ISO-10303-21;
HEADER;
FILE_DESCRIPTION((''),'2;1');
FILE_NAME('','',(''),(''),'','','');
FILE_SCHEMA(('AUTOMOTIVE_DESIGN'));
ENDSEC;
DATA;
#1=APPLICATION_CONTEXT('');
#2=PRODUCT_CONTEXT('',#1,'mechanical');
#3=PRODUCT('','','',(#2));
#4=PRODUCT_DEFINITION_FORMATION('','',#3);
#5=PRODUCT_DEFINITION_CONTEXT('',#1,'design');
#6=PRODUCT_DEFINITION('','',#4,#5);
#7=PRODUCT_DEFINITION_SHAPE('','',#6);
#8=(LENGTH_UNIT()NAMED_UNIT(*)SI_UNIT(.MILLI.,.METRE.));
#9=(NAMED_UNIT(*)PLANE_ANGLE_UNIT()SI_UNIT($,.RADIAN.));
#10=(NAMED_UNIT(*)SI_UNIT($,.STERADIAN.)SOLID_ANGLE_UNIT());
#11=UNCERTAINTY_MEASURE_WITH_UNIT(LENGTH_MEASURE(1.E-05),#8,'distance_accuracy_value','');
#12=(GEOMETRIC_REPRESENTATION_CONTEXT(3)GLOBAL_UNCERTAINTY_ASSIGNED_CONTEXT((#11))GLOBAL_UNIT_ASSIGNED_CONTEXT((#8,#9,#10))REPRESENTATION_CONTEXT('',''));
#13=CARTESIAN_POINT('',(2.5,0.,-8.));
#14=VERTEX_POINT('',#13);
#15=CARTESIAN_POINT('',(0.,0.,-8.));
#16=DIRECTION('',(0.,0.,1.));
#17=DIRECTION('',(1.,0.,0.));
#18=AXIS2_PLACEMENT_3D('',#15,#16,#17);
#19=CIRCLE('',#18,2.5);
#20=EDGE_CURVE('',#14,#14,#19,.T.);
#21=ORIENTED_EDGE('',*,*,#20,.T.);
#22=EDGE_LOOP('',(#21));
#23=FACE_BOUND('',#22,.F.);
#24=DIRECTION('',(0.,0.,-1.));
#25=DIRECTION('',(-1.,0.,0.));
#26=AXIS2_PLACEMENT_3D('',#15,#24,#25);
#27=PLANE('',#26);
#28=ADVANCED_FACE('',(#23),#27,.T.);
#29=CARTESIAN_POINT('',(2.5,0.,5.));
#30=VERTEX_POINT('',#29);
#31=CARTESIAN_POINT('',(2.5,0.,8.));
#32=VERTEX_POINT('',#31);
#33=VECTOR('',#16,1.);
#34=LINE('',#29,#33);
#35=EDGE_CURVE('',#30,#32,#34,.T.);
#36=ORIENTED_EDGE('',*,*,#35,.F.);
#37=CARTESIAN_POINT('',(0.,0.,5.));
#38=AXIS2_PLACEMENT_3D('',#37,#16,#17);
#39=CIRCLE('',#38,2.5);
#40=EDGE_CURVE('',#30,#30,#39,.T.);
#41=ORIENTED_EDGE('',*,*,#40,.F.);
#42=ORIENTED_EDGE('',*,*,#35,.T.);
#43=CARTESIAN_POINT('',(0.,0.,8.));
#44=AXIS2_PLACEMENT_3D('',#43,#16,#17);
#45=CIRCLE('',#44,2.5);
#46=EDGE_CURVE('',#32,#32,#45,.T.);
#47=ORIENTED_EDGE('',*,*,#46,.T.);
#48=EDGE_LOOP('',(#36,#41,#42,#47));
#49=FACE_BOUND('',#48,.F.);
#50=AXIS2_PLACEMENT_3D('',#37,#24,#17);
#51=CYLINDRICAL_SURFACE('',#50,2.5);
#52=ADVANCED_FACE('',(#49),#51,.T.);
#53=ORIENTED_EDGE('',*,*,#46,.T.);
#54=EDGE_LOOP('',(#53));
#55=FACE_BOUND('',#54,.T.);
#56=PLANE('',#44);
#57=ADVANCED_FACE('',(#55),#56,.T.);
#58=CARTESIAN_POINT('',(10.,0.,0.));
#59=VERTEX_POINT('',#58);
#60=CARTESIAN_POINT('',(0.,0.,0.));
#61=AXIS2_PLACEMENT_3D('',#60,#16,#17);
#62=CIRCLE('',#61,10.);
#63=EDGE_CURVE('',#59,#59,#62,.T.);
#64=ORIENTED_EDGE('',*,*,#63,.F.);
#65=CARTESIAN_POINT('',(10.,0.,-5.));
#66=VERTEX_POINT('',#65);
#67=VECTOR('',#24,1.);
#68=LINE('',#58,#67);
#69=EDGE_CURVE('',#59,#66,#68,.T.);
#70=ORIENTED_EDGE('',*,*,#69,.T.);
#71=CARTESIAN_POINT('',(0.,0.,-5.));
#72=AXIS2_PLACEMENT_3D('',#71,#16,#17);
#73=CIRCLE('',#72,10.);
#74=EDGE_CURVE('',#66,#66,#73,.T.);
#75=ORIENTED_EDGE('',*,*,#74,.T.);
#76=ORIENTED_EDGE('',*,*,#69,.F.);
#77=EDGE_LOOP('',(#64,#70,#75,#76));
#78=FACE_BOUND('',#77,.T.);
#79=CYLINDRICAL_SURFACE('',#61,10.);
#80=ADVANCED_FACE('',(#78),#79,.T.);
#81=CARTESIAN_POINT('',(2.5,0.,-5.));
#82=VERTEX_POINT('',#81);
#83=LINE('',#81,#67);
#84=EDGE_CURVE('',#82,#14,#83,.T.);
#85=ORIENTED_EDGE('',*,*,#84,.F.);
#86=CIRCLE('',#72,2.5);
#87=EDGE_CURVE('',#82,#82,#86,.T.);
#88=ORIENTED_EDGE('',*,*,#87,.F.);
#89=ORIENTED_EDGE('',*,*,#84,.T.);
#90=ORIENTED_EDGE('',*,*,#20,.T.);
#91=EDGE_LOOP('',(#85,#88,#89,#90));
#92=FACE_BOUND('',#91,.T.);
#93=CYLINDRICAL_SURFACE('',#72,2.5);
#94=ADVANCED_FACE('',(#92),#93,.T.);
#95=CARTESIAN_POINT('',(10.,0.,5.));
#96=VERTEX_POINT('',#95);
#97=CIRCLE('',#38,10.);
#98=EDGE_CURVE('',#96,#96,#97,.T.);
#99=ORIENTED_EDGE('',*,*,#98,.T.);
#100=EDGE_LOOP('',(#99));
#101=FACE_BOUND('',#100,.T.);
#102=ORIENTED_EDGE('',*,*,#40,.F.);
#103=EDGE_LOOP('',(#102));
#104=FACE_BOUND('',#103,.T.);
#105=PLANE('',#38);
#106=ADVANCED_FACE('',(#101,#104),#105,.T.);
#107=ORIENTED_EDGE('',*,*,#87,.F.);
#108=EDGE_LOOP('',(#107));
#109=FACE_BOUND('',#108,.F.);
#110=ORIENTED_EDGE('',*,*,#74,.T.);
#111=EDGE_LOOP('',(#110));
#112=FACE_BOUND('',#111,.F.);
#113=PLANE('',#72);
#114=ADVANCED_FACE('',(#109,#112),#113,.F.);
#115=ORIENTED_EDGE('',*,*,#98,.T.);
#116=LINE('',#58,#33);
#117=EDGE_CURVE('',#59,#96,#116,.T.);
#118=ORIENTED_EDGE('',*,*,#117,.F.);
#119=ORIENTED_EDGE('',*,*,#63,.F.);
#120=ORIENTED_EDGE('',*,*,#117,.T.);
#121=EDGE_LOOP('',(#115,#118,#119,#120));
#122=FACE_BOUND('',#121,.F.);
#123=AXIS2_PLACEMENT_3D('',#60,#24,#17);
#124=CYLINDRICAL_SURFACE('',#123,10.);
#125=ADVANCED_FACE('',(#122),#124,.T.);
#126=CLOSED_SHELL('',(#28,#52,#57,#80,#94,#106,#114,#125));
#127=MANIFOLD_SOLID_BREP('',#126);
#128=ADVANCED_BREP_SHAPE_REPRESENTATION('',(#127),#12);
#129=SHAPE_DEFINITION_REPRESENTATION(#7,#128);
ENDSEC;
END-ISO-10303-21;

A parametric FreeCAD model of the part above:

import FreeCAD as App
import Part
import Sketcher
from FreeCAD import Vector
Q = App.Units.Quantity

doc = App.newDocument("Part")
body = doc.addObject("PartDesign::Body", "Body")

sketch1 = body.newObject("Sketcher::SketchObject", "Sketch")
sketch1.AttachmentSupport = (doc.getObject("XY_Plane"), [""])
sketch1.MapMode = "FlatFace"
sketch1.addGeometry(Part.Circle(Vector(0, 0, 0), Vector(0, 0, 1), 10), False)
sketch1.addConstraint([
    Sketcher.Constraint("Coincident", 0, 3, -1, 1),
    Sketcher.Constraint("Diameter", 0, Q("20 mm")),
])
pad1 = body.newObject("PartDesign::Pad", "Pad")
pad1.Profile = sketch1
pad1.Length = 10
pad1.Midplane = True

sketch2 = body.newObject("Sketcher::SketchObject", "Sketch001")
sketch2.AttachmentSupport = (doc.getObject("XY_Plane"), [""])
sketch2.MapMode = "FlatFace"
sketch2.AttachmentOffset = App.Placement(Vector(0, 0, 5), App.Rotation())
sketch2.addGeometry(Part.Circle(Vector(0, 0, 0), Vector(0, 0, 1), 2.5), False)
sketch2.addConstraint([
    Sketcher.Constraint("Coincident", 0, 3, -1, 1),
    Sketcher.Constraint("Diameter", 0, Q("5 mm")),
])
pad2 = body.newObject("PartDesign::Pad", "Pad001")
pad2.Profile = sketch2
pad2.Length = 3
doc.recompute()

mirrored = body.newObject("PartDesign::Mirrored", "Mirrored")
mirrored.Originals = [pad2]
mirrored.MirrorPlane = (doc.getObject("XY_Plane"), [""])
body.Tip = mirrored

doc.recompute()
